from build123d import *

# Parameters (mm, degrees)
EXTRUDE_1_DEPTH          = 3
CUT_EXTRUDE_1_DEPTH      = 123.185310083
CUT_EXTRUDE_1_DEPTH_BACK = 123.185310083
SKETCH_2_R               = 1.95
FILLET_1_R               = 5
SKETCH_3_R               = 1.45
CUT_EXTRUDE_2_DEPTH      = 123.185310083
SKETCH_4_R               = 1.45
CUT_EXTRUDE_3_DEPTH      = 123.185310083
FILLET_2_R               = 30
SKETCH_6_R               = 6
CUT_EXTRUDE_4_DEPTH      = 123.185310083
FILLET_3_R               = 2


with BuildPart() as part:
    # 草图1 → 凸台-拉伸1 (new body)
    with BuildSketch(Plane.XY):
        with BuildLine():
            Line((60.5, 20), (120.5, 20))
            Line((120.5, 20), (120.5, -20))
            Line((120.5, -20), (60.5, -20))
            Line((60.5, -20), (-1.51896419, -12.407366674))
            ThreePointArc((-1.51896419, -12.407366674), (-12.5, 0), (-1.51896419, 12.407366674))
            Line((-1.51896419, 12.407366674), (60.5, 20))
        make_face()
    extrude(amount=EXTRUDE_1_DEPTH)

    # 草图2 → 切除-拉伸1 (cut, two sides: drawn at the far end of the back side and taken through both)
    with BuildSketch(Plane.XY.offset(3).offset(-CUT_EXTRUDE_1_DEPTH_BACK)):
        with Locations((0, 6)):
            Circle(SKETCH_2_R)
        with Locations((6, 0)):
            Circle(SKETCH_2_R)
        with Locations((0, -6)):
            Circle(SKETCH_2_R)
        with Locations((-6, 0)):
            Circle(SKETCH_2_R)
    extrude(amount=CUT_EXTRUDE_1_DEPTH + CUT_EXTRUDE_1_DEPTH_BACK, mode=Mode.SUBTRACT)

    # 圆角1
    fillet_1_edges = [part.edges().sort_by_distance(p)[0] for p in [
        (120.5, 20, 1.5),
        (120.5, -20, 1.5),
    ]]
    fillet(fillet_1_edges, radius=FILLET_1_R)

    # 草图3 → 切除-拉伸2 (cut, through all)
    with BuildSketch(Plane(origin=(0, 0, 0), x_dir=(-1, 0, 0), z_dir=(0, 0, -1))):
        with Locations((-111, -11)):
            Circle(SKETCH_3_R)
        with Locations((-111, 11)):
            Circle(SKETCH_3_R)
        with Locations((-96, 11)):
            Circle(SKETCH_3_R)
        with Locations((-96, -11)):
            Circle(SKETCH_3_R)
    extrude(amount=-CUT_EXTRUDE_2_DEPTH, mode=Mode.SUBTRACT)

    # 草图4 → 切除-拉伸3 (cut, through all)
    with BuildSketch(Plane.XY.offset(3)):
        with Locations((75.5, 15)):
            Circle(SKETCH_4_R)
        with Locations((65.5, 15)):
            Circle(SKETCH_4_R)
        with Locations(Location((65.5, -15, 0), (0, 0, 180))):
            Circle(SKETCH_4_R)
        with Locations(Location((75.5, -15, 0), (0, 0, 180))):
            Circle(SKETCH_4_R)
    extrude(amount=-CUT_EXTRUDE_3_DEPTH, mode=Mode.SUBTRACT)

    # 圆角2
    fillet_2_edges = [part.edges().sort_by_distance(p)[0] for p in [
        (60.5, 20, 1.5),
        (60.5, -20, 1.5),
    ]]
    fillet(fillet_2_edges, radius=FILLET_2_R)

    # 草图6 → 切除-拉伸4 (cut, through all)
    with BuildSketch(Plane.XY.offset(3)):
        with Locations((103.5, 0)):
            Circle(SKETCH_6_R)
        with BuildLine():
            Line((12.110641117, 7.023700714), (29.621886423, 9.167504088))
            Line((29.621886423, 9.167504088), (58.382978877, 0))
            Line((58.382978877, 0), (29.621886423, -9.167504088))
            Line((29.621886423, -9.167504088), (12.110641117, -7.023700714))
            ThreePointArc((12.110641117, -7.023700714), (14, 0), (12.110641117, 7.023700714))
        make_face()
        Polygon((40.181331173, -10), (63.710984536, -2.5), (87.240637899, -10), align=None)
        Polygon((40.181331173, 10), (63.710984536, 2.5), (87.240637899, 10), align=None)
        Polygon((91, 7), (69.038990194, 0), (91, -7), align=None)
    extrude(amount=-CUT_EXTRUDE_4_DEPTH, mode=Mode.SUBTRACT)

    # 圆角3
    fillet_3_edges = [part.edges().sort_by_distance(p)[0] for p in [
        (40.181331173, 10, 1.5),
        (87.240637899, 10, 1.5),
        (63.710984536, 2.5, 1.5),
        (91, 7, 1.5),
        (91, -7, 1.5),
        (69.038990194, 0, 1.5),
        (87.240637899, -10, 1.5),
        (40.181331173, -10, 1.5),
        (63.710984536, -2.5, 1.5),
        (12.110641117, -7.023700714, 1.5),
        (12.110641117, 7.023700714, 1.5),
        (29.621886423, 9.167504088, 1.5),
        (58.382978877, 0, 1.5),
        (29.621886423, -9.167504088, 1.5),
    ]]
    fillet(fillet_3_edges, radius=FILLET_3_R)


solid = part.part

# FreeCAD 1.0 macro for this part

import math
import FreeCAD as App
import Part
import Sketcher
from FreeCAD import Vector
Q = App.Units.Quantity


def edges_at(feature, points):
    """Names of the edges that pass closest to the given points."""
    edges = feature.Shape.Edges
    near = lambda p: min(range(len(edges)), key=lambda i: edges[i].distToShape(Part.Vertex(*p))[0])
    return sorted({f"Edge{near(p) + 1}" for p in points})


def add_polygon(sketch, points):
    """Adds a closed chain of lines whose ends are joined by coincident constraints."""
    first, n = sketch.GeometryCount, len(points)
    for a, b in zip(points, points[1:] + points[:1]):
        sketch.addGeometry(Part.LineSegment(App.Vector(*a, 0), App.Vector(*b, 0)), False)
    for i in range(n):
        sketch.addConstraint(Sketcher.Constraint("Coincident", first + i, 2, first + (i + 1) % n, 1))

doc = App.newDocument("Part")
body = doc.addObject("PartDesign::Body", "Body")

# Sketch on XY plane
sketch1 = doc.addObject("Sketcher::SketchObject", "Sketch")
body.addObject(sketch1)
sketch1.AttachmentSupport = (doc.XY_Plane, [""])
sketch1.MapMode = "FlatFace"
sketch1.addGeometry([
    Part.LineSegment(Vector(120, 20, 0), Vector(60, 20, 0)),  # 0
    Part.LineSegment(Vector(60, 20, 0), Vector(-2, 12, 0)),  # 1
    Part.ArcOfCircle(Part.Circle(Vector(0, 0, 0), Vector(0, 0, 1), 12), math.radians(97), math.radians(263)),  # 2
    Part.LineSegment(Vector(-2, -12, 0), Vector(60, -20, 0)),  # 3
    Part.LineSegment(Vector(60, -20, 0), Vector(120, -20, 0)),  # 4
    Part.LineSegment(Vector(120, -20, 0), Vector(120, 20, 0)),  # 5
], False)
sketch1.addConstraint([
    Sketcher.Constraint("Coincident", 0, 2, 1, 1),
    Sketcher.Constraint("Tangent", 1, 2, 2, 1),
    Sketcher.Constraint("Tangent", 2, 2, 3, 1),
    Sketcher.Constraint("Coincident", 3, 2, 4, 1),
    Sketcher.Constraint("Coincident", 4, 2, 5, 1),
    Sketcher.Constraint("Coincident", 5, 2, 0, 1),
    Sketcher.Constraint("Horizontal", 0),
    Sketcher.Constraint("Horizontal", 4),
    Sketcher.Constraint("Vertical", 5),
    Sketcher.Constraint("Coincident", 2, 3, -1, 1),
    Sketcher.Constraint("Symmetric", 0, 2, 3, 2, -1),
    Sketcher.Constraint("Radius", 2, Q("12.5 mm")),
    Sketcher.Constraint("DistanceX", 0, 2, 0, 1, Q("60 mm")),
    Sketcher.Constraint("DistanceY", 5, 1, 5, 2, Q("40 mm")),
    Sketcher.Constraint("DistanceX", -1, 1, 0, 2, Q("60.5 mm")),
])
pad1 = doc.addObject("PartDesign::Pad", "Pad")
body.addObject(pad1)
pad1.Profile = sketch1
pad1.Length = 3

# Sketch on XY plane
sketch2 = doc.addObject("Sketcher::SketchObject", "Sketch001")
body.addObject(sketch2)
sketch2.AttachmentSupport = (doc.XY_Plane, [""])
sketch2.MapMode = "FlatFace"
sketch2.AttachmentOffset = App.Placement(Vector(0, 0, 3), App.Rotation())
sketch2.addGeometry([
    Part.Circle(Vector(0, 6, 0), Vector(0, 0, 1), 1.9),
    Part.Circle(Vector(6, 0, 0), Vector(0, 0, 1), 1.9),
    Part.Circle(Vector(0, -6, 0), Vector(0, 0, 1), 1.9),
    Part.Circle(Vector(-6, 0, 0), Vector(0, 0, 1), 1.9),
], False)
sketch2.addConstraint([
    Sketcher.Constraint("Equal", 0, 1),
    Sketcher.Constraint("Equal", 1, 2),
    Sketcher.Constraint("Equal", 2, 3),
    Sketcher.Constraint("Symmetric", 0, 3, 2, 3, -1, 1),
    Sketcher.Constraint("Symmetric", 1, 3, 3, 3, -1, 1),
    Sketcher.Constraint("PointOnObject", 0, 3, -2),
    Sketcher.Constraint("PointOnObject", 1, 3, -1),
    Sketcher.Constraint("Diameter", 0, Q("3.9 mm")),
    Sketcher.Constraint("DistanceY", -1, 1, 0, 3, Q("6 mm")),
    Sketcher.Constraint("DistanceX", -1, 1, 1, 3, Q("6 mm")),
])
pocket1 = doc.addObject("PartDesign::Pocket", "Pocket")
body.addObject(pocket1)
pocket1.Profile = sketch2
pocket1.Type = "ThroughAll"
pocket1.Midplane = True
doc.recompute()

fillet = doc.addObject("PartDesign::Fillet", "Fillet")
body.addObject(fillet)
fillet.Base = (pocket1, edges_at(pocket1, [(120.5, 20, 1.5), (120.5, -20, 1.5)]))
fillet.Radius = 5

# Sketch on XY plane
sketch3 = doc.addObject("Sketcher::SketchObject", "Sketch002")
body.addObject(sketch3)
sketch3.AttachmentSupport = (doc.XY_Plane, [""])
sketch3.MapMode = "FlatFace"
sketch3.addGeometry([
    Part.Circle(Vector(111, -11, 0), Vector(0, 0, 1), 1.4),
    Part.Circle(Vector(111, 11, 0), Vector(0, 0, 1), 1.4),
    Part.Circle(Vector(96, 11, 0), Vector(0, 0, 1), 1.4),
    Part.Circle(Vector(96, -11, 0), Vector(0, 0, 1), 1.4),
], False)
sketch3.addConstraint([
    Sketcher.Constraint("Equal", 0, 1),
    Sketcher.Constraint("Equal", 1, 2),
    Sketcher.Constraint("Equal", 2, 3),
    Sketcher.Constraint("Symmetric", 0, 3, 1, 3, -1),
    Sketcher.Constraint("Symmetric", 2, 3, 3, 3, -1),
    Sketcher.Constraint("Horizontal", 1, 3, 2, 3),
    Sketcher.Constraint("Diameter", 0, Q("2.9 mm")),
    Sketcher.Constraint("DistanceX", -1, 1, 0, 3, Q("111 mm")),
    Sketcher.Constraint("DistanceY", 0, 3, -1, 1, Q("11 mm")),
    Sketcher.Constraint("DistanceX", -1, 1, 2, 3, Q("96 mm")),
])
pocket2 = doc.addObject("PartDesign::Pocket", "Pocket001")
body.addObject(pocket2)
pocket2.Profile = sketch3
pocket2.Type = "ThroughAll"
pocket2.Reversed = True

# Sketch on XY plane
sketch4 = doc.addObject("Sketcher::SketchObject", "Sketch003")
body.addObject(sketch4)
sketch4.AttachmentSupport = (doc.XY_Plane, [""])
sketch4.MapMode = "FlatFace"
sketch4.AttachmentOffset = App.Placement(Vector(0, 0, 3), App.Rotation())
sketch4.addGeometry([
    Part.Circle(Vector(75.5, 15, 0), Vector(0, 0, 1), 1.4),
    Part.Circle(Vector(65.5, 15, 0), Vector(0, 0, 1), 1.4),
    Part.Circle(Vector(65.5, -15, 0), Vector(0, 0, 1), 1.4),
    Part.Circle(Vector(75.5, -15, 0), Vector(0, 0, 1), 1.4),
], False)
sketch4.addConstraint([
    Sketcher.Constraint("Equal", 0, 1),
    Sketcher.Constraint("Equal", 1, 2),
    Sketcher.Constraint("Equal", 2, 3),
    Sketcher.Constraint("Symmetric", 1, 3, 2, 3, -1),
    Sketcher.Constraint("Symmetric", 0, 3, 3, 3, -1),
    Sketcher.Constraint("Horizontal", 0, 3, 1, 3),
    Sketcher.Constraint("Diameter", 0, Q("2.9 mm")),
    Sketcher.Constraint("DistanceY", -1, 1, 0, 3, Q("15 mm")),
    Sketcher.Constraint("DistanceX", 1, 3, 0, 3, Q("10 mm")),
    Sketcher.Constraint("DistanceX", -1, 1, 0, 3, Q("75.5 mm")),
])
pocket3 = doc.addObject("PartDesign::Pocket", "Pocket002")
body.addObject(pocket3)
pocket3.Profile = sketch4
pocket3.Type = "ThroughAll"
doc.recompute()

fillet2 = doc.addObject("PartDesign::Fillet", "Fillet001")
body.addObject(fillet2)
fillet2.Base = (pocket3, edges_at(pocket3, [(60.5, 20, 1.5), (60.5, -20, 1.5)]))
fillet2.Radius = 30

# Sketch on XY plane
sketch5 = doc.addObject("Sketcher::SketchObject", "Sketch004")
body.addObject(sketch5)
sketch5.AttachmentSupport = (doc.XY_Plane, [""])
sketch5.MapMode = "FlatFace"
sketch5.AttachmentOffset = App.Placement(Vector(0, 0, 3), App.Rotation())
sketch5.addGeometry(Part.Circle(Vector(104, 0, 0), Vector(0, 0, 1), 6), False)  # 0
sketch5.addGeometry(Part.LineSegment(Vector(30, 9, 0), Vector(12, 7, 0)), False)  # 1
sketch5.addGeometry(Part.ArcOfCircle(Part.Circle(Vector(0, 0, 0), Vector(0, 0, 1), 14), math.radians(-30), math.radians(30)), False)  # 2
sketch5.addGeometry(Part.LineSegment(Vector(12, -7, 0), Vector(30, -9, 0)), False)  # 3
sketch5.addGeometry(Part.LineSegment(Vector(30, -9, 0), Vector(58, 0, 0)), False)  # 4
sketch5.addGeometry(Part.LineSegment(Vector(58, 0, 0), Vector(30, 9, 0)), False)  # 5
add_polygon(sketch5, [(64, -2), (40, -10), (87, -10)])  # lines 6-8
add_polygon(sketch5, [(40, 10), (64, 2), (87, 10)])  # lines 9-11
add_polygon(sketch5, [(91, 7), (69, 0), (91, -7)])  # lines 12-14
sketch5.addConstraint([
    Sketcher.Constraint("Coincident", 1, 2, 2, 2),
    Sketcher.Constraint("Coincident", 2, 1, 3, 1),
    Sketcher.Constraint("Coincident", 3, 2, 4, 1),
    Sketcher.Constraint("Coincident", 4, 2, 5, 1),
    Sketcher.Constraint("Coincident", 5, 2, 1, 1),
    Sketcher.Constraint("Horizontal", 7),
    Sketcher.Constraint("Horizontal", 11),
    Sketcher.Constraint("Vertical", 14),
    Sketcher.Constraint("Coincident", 2, 3, -1, 1),
    Sketcher.Constraint("Symmetric", 3, 2, 5, 2, -1),
    Sketcher.Constraint("Symmetric", 8, 2, 9, 2, -1),
    Sketcher.Constraint("Symmetric", 7, 2, 10, 2, -1),
    Sketcher.Constraint("PointOnObject", 0, 3, -1),
    Sketcher.Constraint("PointOnObject", 4, 2, -1),
    Sketcher.Constraint("PointOnObject", 12, 2, -1),
    Sketcher.Constraint("Parallel", 4, 6),
    Sketcher.Constraint("Parallel", 5, 8),
    Sketcher.Constraint("Parallel", 8, 9),
    Sketcher.Constraint("Parallel", 10, 12),
    Sketcher.Constraint("Parallel", 9, 13),
    Sketcher.Constraint("Vertical", 1, 2, 2, 1),
    Sketcher.Constraint("Diameter", 0, Q("12 mm")),
    Sketcher.Constraint("Radius", 2, Q("14 mm")),
    Sketcher.Constraint("DistanceY", 14, 1, 14, 2, Q("14 mm")),
    Sketcher.Constraint("DistanceY", 6, 2, -1, 1, Q("10 mm")),
    Sketcher.Constraint("DistanceX", -1, 1, 13, 2, Q("91 mm")),
    Sketcher.Constraint("DistanceY", 8, 2, 9, 2, Q("5 mm")),
    Sketcher.Constraint("DistanceX", -1, 1, 0, 3, Q("103.5 mm")),
    Sketcher.Constraint("DistanceY", -1, 1, 1, 2, Q("7.023701 mm")),
    Sketcher.Constraint("DistanceX", 3, 2, 8, 2, Q("34.089098 mm")),
    Sketcher.Constraint("Distance", 4, Q("30.186811 mm")),
    Sketcher.Constraint("Distance", 12, Q("23.049641 mm")),
    Sketcher.Constraint("DistanceX", -1, 1, 4, 2, Q("58.382979 mm")),
])
pocket4 = doc.addObject("PartDesign::Pocket", "Pocket003")
body.addObject(pocket4)
pocket4.Profile = sketch5
pocket4.Type = "ThroughAll"
doc.recompute()

fillet3 = doc.addObject("PartDesign::Fillet", "Fillet002")
body.addObject(fillet3)
fillet3.Base = (pocket4, edges_at(pocket4, [
    (40.181, 10, 1.5),
    (87.241, 10, 1.5),
    (63.711, 2.5, 1.5),
    (91, 7, 1.5),
    (91, -7, 1.5),
    (69.039, 0, 1.5),
    (87.241, -10, 1.5),
    (40.181, -10, 1.5),
    (63.711, -2.5, 1.5),
    (12.111, -7.024, 1.5),
    (12.111, 7.024, 1.5),
    (29.622, 9.168, 1.5),
    (58.383, 0, 1.5),
    (29.622, -9.168, 1.5),
]))
fillet3.Radius = 2

doc.recompute()
